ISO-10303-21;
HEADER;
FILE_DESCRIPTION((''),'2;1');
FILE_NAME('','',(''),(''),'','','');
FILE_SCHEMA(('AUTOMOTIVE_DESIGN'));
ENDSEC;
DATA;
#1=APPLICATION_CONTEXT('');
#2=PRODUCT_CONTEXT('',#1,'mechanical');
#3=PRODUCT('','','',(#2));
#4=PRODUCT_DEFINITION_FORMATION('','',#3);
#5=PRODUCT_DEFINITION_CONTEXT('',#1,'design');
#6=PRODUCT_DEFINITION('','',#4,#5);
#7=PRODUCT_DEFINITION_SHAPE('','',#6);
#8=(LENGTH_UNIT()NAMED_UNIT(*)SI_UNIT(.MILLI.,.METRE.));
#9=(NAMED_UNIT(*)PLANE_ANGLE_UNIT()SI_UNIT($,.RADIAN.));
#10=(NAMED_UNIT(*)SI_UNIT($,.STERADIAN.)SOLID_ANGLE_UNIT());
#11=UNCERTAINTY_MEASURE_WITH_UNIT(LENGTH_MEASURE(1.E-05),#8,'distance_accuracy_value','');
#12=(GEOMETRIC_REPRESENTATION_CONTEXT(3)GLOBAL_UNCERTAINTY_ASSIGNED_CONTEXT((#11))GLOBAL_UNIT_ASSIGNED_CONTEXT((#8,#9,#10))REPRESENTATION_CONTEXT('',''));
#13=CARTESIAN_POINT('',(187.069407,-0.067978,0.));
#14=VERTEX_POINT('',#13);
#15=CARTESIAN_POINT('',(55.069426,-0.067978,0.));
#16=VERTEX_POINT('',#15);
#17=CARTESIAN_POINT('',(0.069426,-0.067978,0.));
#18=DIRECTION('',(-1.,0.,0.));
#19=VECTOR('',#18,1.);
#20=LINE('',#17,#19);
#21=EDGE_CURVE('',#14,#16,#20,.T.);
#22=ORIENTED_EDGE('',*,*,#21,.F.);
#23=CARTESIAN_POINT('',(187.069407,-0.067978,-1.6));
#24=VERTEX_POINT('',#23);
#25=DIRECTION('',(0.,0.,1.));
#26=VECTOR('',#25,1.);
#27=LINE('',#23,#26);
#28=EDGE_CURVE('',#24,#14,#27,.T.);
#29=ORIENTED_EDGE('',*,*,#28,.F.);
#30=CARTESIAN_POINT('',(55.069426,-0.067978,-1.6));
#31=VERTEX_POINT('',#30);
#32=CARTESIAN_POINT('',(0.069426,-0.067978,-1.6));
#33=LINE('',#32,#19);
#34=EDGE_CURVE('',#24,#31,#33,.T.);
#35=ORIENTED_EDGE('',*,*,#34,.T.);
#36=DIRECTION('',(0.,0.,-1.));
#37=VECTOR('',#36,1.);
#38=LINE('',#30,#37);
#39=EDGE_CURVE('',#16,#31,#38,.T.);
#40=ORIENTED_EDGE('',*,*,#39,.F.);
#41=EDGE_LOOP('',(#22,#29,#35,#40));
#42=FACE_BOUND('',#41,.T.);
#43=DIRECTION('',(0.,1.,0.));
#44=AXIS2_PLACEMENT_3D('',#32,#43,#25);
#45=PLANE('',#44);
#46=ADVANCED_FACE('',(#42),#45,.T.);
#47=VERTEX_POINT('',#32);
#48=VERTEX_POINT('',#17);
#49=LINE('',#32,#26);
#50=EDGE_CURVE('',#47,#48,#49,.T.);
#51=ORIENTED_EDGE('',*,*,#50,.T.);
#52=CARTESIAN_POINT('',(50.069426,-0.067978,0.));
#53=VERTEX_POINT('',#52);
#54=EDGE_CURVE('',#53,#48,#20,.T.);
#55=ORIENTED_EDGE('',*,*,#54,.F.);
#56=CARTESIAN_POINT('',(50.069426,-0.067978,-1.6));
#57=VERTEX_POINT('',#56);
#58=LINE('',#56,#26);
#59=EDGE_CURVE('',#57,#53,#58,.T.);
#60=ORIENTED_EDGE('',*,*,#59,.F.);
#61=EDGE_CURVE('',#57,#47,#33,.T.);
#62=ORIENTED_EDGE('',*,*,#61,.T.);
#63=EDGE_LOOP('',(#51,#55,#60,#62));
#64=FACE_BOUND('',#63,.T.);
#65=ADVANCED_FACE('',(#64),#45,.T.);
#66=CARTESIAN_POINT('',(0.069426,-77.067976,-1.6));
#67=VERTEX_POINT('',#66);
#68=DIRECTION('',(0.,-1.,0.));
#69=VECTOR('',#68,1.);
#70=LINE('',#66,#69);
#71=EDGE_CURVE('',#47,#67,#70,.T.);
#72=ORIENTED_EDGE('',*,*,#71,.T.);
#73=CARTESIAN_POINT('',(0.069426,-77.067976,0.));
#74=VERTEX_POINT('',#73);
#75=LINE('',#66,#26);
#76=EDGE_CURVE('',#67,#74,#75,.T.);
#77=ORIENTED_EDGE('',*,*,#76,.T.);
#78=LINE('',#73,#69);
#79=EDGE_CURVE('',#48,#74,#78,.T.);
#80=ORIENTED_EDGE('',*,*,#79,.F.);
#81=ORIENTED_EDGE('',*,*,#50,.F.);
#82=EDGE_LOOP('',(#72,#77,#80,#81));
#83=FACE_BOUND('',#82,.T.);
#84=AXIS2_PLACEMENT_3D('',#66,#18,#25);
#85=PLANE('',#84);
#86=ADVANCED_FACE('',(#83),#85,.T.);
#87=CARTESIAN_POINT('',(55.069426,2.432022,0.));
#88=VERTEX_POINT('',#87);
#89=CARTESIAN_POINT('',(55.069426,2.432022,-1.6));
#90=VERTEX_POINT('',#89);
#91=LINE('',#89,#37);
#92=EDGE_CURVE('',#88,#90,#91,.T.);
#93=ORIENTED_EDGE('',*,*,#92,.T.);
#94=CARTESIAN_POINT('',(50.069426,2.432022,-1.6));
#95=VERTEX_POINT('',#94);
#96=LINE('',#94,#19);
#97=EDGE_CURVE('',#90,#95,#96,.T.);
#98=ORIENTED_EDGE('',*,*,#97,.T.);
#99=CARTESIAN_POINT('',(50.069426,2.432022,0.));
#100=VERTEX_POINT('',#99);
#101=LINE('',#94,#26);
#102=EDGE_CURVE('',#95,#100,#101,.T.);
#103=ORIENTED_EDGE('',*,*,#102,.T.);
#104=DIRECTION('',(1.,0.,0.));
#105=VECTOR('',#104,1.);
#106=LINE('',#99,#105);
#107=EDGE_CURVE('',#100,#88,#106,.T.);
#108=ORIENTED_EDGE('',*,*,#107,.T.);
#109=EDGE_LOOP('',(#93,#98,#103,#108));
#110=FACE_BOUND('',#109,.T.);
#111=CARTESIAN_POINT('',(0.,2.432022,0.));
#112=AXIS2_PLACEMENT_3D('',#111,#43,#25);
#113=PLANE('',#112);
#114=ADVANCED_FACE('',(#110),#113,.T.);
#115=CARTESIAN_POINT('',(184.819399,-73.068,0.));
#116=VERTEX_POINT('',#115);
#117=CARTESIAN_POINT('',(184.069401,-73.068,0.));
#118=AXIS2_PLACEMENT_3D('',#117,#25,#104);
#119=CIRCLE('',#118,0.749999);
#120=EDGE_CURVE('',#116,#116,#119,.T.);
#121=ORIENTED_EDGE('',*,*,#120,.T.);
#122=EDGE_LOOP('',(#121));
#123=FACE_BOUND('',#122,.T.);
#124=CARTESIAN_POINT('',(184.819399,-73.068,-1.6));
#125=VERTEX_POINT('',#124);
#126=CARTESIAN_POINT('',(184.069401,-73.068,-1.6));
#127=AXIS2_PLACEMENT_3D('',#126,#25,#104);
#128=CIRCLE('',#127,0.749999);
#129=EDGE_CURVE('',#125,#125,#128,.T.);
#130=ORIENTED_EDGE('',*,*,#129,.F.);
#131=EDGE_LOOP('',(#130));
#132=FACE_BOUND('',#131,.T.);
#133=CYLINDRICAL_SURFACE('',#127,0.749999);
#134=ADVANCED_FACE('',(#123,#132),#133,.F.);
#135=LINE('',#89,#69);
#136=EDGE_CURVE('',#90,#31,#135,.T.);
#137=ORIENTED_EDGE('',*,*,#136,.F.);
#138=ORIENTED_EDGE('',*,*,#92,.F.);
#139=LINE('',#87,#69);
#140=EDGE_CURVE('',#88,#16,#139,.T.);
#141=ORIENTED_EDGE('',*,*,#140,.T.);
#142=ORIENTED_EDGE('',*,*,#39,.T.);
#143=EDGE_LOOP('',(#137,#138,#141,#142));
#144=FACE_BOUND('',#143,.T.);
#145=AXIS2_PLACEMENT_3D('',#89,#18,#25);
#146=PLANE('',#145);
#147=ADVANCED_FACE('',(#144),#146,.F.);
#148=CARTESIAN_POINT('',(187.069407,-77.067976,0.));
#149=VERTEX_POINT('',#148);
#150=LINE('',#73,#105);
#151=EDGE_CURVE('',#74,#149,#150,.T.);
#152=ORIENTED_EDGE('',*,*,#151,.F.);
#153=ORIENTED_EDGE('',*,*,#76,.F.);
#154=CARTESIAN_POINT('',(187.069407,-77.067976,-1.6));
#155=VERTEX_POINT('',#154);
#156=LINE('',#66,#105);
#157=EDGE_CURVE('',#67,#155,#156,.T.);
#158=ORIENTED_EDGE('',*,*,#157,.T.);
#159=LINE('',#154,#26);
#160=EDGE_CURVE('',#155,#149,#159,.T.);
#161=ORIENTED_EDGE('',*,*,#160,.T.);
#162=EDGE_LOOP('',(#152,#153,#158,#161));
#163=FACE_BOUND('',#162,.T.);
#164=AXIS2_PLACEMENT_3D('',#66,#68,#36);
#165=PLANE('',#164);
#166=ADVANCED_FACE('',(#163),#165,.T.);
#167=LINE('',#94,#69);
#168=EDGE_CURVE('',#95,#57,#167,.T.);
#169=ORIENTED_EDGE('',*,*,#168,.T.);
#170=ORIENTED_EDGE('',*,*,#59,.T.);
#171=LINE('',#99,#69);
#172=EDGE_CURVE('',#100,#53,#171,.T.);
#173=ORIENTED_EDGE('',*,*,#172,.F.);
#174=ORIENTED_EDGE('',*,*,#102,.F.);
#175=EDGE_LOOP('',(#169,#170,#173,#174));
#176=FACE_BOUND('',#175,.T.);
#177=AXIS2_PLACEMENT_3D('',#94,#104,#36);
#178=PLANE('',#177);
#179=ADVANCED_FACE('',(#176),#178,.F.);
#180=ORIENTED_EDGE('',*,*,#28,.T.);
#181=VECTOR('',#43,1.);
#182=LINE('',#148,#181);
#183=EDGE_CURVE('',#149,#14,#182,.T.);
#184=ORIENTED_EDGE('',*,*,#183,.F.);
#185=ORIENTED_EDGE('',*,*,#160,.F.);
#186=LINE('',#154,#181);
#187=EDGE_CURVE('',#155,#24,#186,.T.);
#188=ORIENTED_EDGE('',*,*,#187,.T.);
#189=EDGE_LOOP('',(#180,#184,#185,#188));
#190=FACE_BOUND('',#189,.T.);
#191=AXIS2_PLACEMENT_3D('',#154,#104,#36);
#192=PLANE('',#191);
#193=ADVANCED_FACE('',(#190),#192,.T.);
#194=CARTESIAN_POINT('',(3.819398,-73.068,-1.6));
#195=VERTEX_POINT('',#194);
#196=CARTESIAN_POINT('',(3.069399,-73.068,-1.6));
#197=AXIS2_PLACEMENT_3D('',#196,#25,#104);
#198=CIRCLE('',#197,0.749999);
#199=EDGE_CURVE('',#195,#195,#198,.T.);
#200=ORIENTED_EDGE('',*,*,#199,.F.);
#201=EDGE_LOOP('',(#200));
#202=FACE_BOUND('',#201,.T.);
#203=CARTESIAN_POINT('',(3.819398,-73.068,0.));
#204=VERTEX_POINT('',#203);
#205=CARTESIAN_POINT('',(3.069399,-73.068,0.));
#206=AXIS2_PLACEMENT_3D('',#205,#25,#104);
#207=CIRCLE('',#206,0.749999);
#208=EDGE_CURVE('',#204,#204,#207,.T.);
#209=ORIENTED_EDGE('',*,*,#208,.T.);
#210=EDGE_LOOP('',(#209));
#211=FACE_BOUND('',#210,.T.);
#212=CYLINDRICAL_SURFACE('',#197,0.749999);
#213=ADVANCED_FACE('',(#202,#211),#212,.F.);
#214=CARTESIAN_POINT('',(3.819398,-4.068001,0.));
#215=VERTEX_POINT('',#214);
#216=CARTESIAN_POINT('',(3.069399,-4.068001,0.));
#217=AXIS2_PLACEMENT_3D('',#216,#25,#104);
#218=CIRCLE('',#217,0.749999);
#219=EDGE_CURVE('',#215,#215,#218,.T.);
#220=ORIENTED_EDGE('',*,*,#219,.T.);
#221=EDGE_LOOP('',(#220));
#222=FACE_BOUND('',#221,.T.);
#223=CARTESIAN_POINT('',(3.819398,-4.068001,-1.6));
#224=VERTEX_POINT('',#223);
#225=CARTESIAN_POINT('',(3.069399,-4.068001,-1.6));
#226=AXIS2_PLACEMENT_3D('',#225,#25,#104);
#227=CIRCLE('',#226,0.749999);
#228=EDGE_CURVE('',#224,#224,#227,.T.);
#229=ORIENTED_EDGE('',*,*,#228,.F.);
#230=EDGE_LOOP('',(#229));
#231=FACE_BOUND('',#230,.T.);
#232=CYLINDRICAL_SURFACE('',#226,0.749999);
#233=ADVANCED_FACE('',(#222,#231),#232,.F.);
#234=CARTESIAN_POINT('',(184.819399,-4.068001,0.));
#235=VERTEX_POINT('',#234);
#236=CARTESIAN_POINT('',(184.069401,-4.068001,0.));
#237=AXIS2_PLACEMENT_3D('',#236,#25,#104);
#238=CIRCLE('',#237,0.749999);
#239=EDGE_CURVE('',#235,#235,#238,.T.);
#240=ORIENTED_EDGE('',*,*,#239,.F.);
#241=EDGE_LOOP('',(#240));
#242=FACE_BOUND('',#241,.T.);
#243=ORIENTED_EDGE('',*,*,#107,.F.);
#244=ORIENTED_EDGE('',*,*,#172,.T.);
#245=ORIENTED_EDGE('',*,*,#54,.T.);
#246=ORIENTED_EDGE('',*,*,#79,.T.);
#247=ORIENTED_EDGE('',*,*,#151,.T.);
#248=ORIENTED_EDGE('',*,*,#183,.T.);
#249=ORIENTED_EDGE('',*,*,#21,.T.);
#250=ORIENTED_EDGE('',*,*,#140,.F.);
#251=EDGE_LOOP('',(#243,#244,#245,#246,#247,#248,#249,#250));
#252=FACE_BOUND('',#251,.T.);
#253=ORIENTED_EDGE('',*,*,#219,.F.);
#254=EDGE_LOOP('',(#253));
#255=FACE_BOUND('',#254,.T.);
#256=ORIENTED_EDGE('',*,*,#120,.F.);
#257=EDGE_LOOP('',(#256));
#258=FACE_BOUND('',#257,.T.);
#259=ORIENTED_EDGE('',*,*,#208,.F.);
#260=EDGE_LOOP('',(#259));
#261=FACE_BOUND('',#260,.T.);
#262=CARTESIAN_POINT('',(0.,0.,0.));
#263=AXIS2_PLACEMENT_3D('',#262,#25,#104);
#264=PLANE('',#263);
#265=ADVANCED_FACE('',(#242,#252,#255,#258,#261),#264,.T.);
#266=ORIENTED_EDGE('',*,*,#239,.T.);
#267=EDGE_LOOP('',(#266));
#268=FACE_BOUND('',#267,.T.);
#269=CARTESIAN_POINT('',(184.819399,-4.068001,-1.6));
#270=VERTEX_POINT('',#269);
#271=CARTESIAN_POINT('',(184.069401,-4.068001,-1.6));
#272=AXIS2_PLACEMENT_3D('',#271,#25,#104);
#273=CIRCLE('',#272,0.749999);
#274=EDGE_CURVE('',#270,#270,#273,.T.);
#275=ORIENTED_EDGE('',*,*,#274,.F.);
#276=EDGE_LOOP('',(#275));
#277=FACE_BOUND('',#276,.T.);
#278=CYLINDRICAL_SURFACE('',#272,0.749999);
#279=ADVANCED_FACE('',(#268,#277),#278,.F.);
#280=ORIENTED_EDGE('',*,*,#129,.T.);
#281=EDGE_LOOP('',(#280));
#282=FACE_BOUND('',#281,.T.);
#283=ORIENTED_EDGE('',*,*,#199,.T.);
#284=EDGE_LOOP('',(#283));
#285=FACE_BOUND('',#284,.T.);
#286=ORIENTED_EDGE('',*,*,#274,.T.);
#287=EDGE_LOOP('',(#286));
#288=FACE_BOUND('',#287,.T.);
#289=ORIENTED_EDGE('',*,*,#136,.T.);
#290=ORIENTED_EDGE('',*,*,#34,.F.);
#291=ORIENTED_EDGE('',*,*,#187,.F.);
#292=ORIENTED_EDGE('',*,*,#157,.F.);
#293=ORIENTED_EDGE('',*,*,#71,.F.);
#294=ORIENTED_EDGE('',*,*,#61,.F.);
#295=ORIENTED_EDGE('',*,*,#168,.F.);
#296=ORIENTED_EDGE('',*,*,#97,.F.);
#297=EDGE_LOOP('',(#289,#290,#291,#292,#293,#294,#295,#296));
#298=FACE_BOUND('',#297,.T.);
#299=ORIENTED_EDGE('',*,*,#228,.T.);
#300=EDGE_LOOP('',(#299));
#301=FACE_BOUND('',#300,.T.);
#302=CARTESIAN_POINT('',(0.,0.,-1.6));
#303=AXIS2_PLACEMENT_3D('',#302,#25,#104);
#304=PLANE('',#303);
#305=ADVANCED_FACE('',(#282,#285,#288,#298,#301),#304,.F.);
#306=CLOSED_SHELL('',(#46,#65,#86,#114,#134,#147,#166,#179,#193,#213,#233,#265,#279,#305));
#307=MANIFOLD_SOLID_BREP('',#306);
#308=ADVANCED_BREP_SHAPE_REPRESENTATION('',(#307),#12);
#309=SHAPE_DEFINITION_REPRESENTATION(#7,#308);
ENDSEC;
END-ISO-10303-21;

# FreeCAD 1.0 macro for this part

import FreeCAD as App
import Part
import Sketcher
from FreeCAD import Vector


def add_polygon(sketch, points):
    """Adds a closed chain of lines whose ends are joined by coincident constraints."""
    first, n = sketch.GeometryCount, len(points)
    for a, b in zip(points, points[1:] + points[:1]):
        sketch.addGeometry(Part.LineSegment(App.Vector(*a, 0), App.Vector(*b, 0)), False)
    for i in range(n):
        sketch.addConstraint(Sketcher.Constraint("Coincident", first + i, 2, first + (i + 1) % n, 1))

doc = App.newDocument("Part")
params = doc.addObject("Spreadsheet::Sheet", "Params")
for row, (alias, value) in enumerate([
    ("sketch1_height", "76.999998 mm"),
    ("pad1_length", "1.6 mm"),
    ("sketch3_width", "5 mm"),
    ("sketch3_height", "1.6 mm"),
    ("pad2_length", "2.5 mm"),
], start=1):
    params.set(f"A{row}", alias)
    params.set(f"B{row}", "=" + value)
    params.setAlias(f"B{row}", alias)

body = doc.addObject("PartDesign::Body", "Body")

# Sketch on XY plane
sketch1 = body.newObject("Sketcher::SketchObject", "Sketch")
sketch1.AttachmentSupport = (doc.getObject("XY_Plane"), [""])
sketch1.MapMode = "FlatFace"
add_polygon(sketch1, [(0.069426, -0.067978), (0.069426, -77.067976), (187.069407, -77.067976), (187.069407, -0.067978)])  # lines 0-3
sketch1.addConstraint([
    Sketcher.Constraint("Vertical", 0),
    Sketcher.Constraint("Horizontal", 1),
    Sketcher.Constraint("Vertical", 2),
    Sketcher.Constraint("Horizontal", 3),
    Sketcher.Constraint("DistanceY", 0, 2, 0, 1, 76.999998),
    Sketcher.Constraint("DistanceX", 1, 1, 1, 2, 186.999982),
    Sketcher.Constraint("DistanceY", 2, 2, -1, 1, 0.067978),
    Sketcher.Constraint("DistanceX", -1, 1, 0, 2, 0.069426),
])
sketch1.setExpression("Constraints[8]", "Params.sketch1_height")
pad1 = body.newObject("PartDesign::Pad", "Pad")
pad1.Profile = sketch1
pad1.setExpression("Length", "Params.pad1_length")
pad1.Reversed = True

# Sketch on XY plane
sketch2 = body.newObject("Sketcher::SketchObject", "Sketch001")
sketch2.AttachmentSupport = (doc.getObject("XY_Plane"), [""])
sketch2.MapMode = "FlatFace"
sketch2.addGeometry([
    Part.Circle(Vector(3.069399, -73.068, 0), Vector(0, 0, 1), 0.749999),
    Part.Circle(Vector(3.069399, -4.068001, 0), Vector(0, 0, 1), 0.749999),
    Part.Circle(Vector(184.069401, -73.068, 0), Vector(0, 0, 1), 0.749999),
    Part.Circle(Vector(184.069401, -4.068001, 0), Vector(0, 0, 1), 0.749999),
], False)
sketch2.addConstraint([
    Sketcher.Constraint("Equal", 0, 1),
    Sketcher.Constraint("Equal", 1, 2),
    Sketcher.Constraint("Equal", 2, 3),
    Sketcher.Constraint("Horizontal", 0, 3, 2, 3),
    Sketcher.Constraint("Horizontal", 1, 3, 3, 3),
    Sketcher.Constraint("Vertical", 0, 3, 1, 3),
    Sketcher.Constraint("Vertical", 2, 3, 3, 3),
    Sketcher.Constraint("DistanceY", 0, 3, 1, 3, 68.999999),
    Sketcher.Constraint("DistanceX", 0, 3, 2, 3, 181.000001),
    Sketcher.Constraint("Diameter", 0, 1.499997),
    Sketcher.Constraint("DistanceY", 0, 3, -1, 1, 73.068),
    Sketcher.Constraint("DistanceX", -1, 1, 0, 3, 3.069399),
])
pocket1 = body.newObject("PartDesign::Pocket", "Pocket")
pocket1.Profile = sketch2
pocket1.Type = "ThroughAll"

# Sketch on XZ plane
sketch3 = body.newObject("Sketcher::SketchObject", "Sketch002")
sketch3.AttachmentSupport = (doc.getObject("XZ_Plane"), [""])
sketch3.MapMode = "FlatFace"
sketch3.AttachmentOffset = App.Placement(Vector(0, 0, 0.067978), App.Rotation())
add_polygon(sketch3, [(50.069426, -1.6), (50.069426, 0), (55.069426, 0), (55.069426, -1.6)])  # lines 0-3
sketch3.addConstraint([
    Sketcher.Constraint("Vertical", 0),
    Sketcher.Constraint("Horizontal", 1),
    Sketcher.Constraint("Vertical", 2),
    Sketcher.Constraint("Horizontal", 3),
    Sketcher.Constraint("PointOnObject", 0, 2, -1),
    Sketcher.Constraint("DistanceX", 1, 1, 1, 2, 5.0),
    Sketcher.Constraint("DistanceY", 0, 1, 0, 2, 1.6),
    Sketcher.Constraint("DistanceX", -1, 1, 0, 2, 50.069426),
])
sketch3.setExpression("Constraints[9]", "Params.sketch3_width")
sketch3.setExpression("Constraints[10]", "Params.sketch3_height")
pad2 = body.newObject("PartDesign::Pad", "Pad001")
pad2.Profile = sketch3
pad2.setExpression("Length", "Params.pad2_length")
pad2.Reversed = True

doc.recompute()
